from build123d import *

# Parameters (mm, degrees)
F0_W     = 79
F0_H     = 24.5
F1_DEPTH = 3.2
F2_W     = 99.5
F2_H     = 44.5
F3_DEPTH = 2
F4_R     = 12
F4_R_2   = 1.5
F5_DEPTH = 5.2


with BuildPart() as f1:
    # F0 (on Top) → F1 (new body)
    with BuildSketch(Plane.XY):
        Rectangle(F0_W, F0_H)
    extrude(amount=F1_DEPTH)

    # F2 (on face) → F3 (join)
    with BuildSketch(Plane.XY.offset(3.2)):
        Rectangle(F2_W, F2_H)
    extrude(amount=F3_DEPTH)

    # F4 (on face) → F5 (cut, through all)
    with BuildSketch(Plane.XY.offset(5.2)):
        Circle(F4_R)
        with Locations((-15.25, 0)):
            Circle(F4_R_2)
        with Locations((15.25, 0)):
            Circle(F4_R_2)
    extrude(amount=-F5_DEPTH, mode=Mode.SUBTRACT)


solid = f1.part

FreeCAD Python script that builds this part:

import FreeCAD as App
import Part
import Sketcher
from FreeCAD import Vector
Q = App.Units.Quantity

doc = App.newDocument("Part")
body = doc.addObject("PartDesign::Body", "Body")

# Sketch on XY plane
sketch1 = doc.addObject("Sketcher::SketchObject", "Sketch")
body.addObject(sketch1)
sketch1.AttachmentSupport = (doc.XY_Plane, [""])
sketch1.MapMode = "FlatFace"
sketch1.addGeometry([
    Part.LineSegment(Vector(-40, 12, 0), Vector(-40, -12, 0)),
    Part.LineSegment(Vector(-40, -12, 0), Vector(40, -12, 0)),
    Part.LineSegment(Vector(40, -12, 0), Vector(40, 12, 0)),
    Part.LineSegment(Vector(40, 12, 0), Vector(-40, 12, 0)),
], False)
sketch1.addConstraint([
    Sketcher.Constraint("Coincident", 0, 2, 1, 1),
    Sketcher.Constraint("Coincident", 1, 2, 2, 1),
    Sketcher.Constraint("Coincident", 2, 2, 3, 1),
    Sketcher.Constraint("Coincident", 3, 2, 0, 1),
    Sketcher.Constraint("Vertical", 0),
    Sketcher.Constraint("Horizontal", 1),
    Sketcher.Constraint("Vertical", 2),
    Sketcher.Constraint("Horizontal", 3),
    Sketcher.Constraint("Symmetric", 0, 2, 2, 2, -1, 1),
    Sketcher.Constraint("DistanceX", 1, 1, 1, 2, Q("79 mm")),
    Sketcher.Constraint("DistanceY", 0, 2, 0, 1, Q("24.5 mm")),
])
pad1 = doc.addObject("PartDesign::Pad", "Pad")
body.addObject(pad1)
pad1.Profile = sketch1
pad1.Length = 3.2

# Sketch on XY plane
sketch2 = doc.addObject("Sketcher::SketchObject", "Sketch001")
body.addObject(sketch2)
sketch2.AttachmentSupport = (doc.XY_Plane, [""])
sketch2.MapMode = "FlatFace"
sketch2.AttachmentOffset = App.Placement(Vector(0, 0, 3.2), App.Rotation())
sketch2.addGeometry([
    Part.LineSegment(Vector(-50, 22, 0), Vector(-50, -22, 0)),
    Part.LineSegment(Vector(-50, -22, 0), Vector(50, -22, 0)),
    Part.LineSegment(Vector(50, -22, 0), Vector(50, 22, 0)),
    Part.LineSegment(Vector(50, 22, 0), Vector(-50, 22, 0)),
], False)
sketch2.addConstraint([
    Sketcher.Constraint("Coincident", 0, 2, 1, 1),
    Sketcher.Constraint("Coincident", 1, 2, 2, 1),
    Sketcher.Constraint("Coincident", 2, 2, 3, 1),
    Sketcher.Constraint("Coincident", 3, 2, 0, 1),
    Sketcher.Constraint("Vertical", 0),
    Sketcher.Constraint("Horizontal", 1),
    Sketcher.Constraint("Vertical", 2),
    Sketcher.Constraint("Horizontal", 3),
    Sketcher.Constraint("Symmetric", 0, 2, 2, 2, -1, 1),
    Sketcher.Constraint("DistanceX", 1, 1, 1, 2, Q("99.5 mm")),
    Sketcher.Constraint("DistanceY", 0, 2, 0, 1, Q("44.5 mm")),
])
pad2 = doc.addObject("PartDesign::Pad", "Pad001")
body.addObject(pad2)
pad2.Profile = sketch2
pad2.Length = 2

# Sketch on XY plane
sketch3 = doc.addObject("Sketcher::SketchObject", "Sketch002")
body.addObject(sketch3)
sketch3.AttachmentSupport = (doc.XY_Plane, [""])
sketch3.MapMode = "FlatFace"
sketch3.AttachmentOffset = App.Placement(Vector(0, 0, 5.2), App.Rotation())
sketch3.addGeometry([
    Part.Circle(Vector(0, 0, 0), Vector(0, 0, 1), 12),
    Part.Circle(Vector(-15.2, 0, 0), Vector(0, 0, 1), 1.5),
    Part.Circle(Vector(15.2, 0, 0), Vector(0, 0, 1), 1.5),
], False)
sketch3.addConstraint([
    Sketcher.Constraint("Coincident", 0, 3, -1, 1),
    Sketcher.Constraint("Equal", 1, 2),
    Sketcher.Constraint("Symmetric", 1, 3, 2, 3, -1, 1),
    Sketcher.Constraint("PointOnObject", 1, 3, -1),
    Sketcher.Constraint("Diameter", 0, Q("24 mm")),
    Sketcher.Constraint("Diameter", 1, Q("3 mm")),
    Sketcher.Constraint("DistanceX", 1, 3, 2, 3, Q("30.5 mm")),
])
pocket1 = doc.addObject("PartDesign::Pocket", "Pocket")
body.addObject(pocket1)
pocket1.Profile = sketch3
pocket1.Type = "ThroughAll"

doc.recompute()
